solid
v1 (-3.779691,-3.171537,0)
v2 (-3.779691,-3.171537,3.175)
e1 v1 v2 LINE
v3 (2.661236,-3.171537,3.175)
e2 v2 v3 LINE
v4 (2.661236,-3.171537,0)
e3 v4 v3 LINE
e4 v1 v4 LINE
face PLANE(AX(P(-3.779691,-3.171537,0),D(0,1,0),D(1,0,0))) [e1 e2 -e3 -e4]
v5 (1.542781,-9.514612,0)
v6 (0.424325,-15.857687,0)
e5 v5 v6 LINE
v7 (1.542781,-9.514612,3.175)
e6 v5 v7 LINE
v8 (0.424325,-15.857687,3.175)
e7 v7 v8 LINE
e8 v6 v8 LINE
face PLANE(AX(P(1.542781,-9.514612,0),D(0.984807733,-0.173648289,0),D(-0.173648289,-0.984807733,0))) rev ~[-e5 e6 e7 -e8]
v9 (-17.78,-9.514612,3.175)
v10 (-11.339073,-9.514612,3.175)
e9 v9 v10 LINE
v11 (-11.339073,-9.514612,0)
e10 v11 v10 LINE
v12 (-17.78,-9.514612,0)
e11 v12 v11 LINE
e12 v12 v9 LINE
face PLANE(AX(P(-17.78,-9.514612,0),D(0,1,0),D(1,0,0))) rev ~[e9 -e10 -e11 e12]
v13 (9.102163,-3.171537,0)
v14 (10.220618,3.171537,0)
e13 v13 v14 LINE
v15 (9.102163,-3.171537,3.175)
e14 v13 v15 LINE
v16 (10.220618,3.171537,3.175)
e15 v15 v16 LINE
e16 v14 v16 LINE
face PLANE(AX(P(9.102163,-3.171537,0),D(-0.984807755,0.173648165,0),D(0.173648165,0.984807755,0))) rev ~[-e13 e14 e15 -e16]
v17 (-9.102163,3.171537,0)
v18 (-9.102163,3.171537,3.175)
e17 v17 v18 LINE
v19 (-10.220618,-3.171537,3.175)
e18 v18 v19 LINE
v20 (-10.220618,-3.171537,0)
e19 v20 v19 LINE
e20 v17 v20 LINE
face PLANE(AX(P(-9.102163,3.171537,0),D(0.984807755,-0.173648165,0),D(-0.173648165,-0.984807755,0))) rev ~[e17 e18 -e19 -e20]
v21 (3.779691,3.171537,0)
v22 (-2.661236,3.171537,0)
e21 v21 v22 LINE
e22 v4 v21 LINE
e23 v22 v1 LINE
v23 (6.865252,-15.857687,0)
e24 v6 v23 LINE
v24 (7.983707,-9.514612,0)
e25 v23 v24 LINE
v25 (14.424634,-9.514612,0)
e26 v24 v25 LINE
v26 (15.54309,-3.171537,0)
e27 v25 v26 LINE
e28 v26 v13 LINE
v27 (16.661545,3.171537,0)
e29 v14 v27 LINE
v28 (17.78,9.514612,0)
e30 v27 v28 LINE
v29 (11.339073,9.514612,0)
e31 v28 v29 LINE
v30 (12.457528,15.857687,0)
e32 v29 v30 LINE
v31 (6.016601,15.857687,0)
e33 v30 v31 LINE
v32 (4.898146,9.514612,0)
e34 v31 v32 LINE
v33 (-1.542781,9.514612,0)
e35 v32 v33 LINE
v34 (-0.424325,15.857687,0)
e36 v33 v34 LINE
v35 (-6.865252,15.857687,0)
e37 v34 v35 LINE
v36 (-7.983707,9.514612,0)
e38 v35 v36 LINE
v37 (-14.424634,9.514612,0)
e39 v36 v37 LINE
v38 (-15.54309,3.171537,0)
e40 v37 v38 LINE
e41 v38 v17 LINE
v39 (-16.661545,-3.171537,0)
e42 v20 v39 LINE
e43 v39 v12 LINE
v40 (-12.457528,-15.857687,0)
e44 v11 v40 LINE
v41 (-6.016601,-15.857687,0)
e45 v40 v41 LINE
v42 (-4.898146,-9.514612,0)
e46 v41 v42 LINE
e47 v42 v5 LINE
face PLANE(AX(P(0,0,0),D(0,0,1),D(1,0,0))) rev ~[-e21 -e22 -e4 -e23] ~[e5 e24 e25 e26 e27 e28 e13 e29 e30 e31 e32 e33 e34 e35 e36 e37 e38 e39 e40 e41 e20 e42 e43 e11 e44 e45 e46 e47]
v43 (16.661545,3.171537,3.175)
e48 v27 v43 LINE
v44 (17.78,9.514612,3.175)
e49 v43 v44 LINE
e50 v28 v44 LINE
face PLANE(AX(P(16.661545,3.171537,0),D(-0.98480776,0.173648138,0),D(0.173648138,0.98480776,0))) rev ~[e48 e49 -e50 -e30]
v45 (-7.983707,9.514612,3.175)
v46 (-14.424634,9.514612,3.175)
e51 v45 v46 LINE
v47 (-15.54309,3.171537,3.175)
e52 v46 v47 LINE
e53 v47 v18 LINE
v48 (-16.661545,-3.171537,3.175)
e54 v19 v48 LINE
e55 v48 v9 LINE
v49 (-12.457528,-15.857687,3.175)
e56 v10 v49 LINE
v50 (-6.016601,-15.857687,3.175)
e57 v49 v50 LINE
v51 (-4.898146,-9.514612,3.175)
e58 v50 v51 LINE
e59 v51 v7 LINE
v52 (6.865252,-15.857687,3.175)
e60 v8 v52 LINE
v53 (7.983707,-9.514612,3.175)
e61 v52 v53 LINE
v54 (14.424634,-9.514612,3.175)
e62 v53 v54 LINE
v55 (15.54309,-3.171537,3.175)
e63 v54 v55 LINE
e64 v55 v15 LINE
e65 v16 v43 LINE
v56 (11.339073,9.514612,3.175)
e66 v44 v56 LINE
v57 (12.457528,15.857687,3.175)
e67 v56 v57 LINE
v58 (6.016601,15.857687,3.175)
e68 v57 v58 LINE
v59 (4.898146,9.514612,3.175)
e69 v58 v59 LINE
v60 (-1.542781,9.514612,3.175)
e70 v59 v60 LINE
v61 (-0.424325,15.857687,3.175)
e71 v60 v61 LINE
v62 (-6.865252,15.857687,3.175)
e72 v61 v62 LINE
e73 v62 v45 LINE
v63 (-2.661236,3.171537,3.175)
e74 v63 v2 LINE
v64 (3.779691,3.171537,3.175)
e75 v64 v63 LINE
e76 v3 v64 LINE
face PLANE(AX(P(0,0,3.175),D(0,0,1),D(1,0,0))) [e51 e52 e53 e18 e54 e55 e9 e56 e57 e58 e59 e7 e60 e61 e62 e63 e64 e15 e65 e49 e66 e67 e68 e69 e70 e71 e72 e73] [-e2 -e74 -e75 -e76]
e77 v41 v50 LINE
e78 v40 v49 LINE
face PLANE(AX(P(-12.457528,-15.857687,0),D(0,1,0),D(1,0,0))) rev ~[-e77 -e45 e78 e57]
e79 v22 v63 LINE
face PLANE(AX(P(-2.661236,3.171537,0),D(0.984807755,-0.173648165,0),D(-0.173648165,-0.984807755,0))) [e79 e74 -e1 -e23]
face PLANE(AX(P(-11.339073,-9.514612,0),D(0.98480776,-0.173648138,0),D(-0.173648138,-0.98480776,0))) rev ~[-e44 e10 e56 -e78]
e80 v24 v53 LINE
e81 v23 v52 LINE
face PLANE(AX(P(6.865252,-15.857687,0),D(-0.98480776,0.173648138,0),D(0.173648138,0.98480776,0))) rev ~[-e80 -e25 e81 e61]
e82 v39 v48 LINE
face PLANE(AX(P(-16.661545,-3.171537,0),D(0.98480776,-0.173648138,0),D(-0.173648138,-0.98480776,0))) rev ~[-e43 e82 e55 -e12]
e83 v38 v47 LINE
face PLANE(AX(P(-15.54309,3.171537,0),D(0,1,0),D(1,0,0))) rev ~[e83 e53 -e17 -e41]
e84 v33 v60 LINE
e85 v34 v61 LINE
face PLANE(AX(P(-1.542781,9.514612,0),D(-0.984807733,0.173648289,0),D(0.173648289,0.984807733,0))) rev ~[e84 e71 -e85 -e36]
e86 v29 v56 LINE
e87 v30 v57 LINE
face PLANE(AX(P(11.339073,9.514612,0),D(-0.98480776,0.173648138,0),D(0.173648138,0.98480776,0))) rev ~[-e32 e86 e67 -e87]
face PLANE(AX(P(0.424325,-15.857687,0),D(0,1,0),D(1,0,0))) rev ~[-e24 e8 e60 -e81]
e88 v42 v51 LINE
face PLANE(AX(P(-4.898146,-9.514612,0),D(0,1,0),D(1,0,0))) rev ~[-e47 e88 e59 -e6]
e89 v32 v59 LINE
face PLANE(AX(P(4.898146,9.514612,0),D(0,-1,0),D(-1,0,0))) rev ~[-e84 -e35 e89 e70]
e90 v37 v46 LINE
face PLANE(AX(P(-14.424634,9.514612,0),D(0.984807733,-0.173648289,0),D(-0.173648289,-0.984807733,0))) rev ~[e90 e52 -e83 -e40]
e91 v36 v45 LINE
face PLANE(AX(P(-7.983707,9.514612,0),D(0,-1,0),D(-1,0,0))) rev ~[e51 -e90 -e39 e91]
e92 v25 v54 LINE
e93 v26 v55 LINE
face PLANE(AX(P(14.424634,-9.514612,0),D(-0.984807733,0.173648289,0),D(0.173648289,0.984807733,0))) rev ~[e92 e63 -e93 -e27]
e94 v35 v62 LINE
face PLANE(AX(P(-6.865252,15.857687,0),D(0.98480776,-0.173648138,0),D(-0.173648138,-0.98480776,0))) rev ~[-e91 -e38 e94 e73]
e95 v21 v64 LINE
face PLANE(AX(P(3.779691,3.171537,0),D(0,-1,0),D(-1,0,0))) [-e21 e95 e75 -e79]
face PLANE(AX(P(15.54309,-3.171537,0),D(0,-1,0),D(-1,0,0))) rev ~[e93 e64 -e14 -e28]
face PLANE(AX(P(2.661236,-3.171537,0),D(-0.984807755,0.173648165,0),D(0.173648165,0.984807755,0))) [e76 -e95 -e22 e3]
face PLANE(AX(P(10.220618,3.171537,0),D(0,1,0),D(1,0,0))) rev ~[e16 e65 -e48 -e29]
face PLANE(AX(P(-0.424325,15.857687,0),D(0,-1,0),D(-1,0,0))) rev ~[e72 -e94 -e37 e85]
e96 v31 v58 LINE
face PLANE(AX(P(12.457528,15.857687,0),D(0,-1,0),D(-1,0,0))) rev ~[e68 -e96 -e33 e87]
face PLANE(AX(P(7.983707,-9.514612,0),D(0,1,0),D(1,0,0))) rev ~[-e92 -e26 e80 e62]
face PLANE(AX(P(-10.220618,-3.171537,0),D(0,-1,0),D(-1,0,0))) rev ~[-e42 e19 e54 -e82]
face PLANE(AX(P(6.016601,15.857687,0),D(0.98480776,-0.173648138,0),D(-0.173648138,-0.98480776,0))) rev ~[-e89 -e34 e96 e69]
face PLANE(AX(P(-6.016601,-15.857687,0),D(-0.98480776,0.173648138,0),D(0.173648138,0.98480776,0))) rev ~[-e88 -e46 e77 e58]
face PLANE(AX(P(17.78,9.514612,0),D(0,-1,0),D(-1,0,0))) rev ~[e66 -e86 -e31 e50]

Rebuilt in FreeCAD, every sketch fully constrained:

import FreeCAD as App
import Part
import Sketcher
from FreeCAD import Vector
Q = App.Units.Quantity

doc = App.newDocument("Part")
body = doc.addObject("PartDesign::Body", "Body")

# Sketch on XY plane
sketch1 = body.newObject("Sketcher::SketchObject", "Sketch")
sketch1.AttachmentSupport = (doc.getObject("XY_Plane"), [""])
sketch1.MapMode = "FlatFace"
sketch1.addGeometry(Part.LineSegment(Vector(-14, 10, 0), Vector(-16, 3, 0)), False)
sketch1.addGeometry(Part.LineSegment(Vector(-16, 3, 0), Vector(-9, 3, 0)), False)
sketch1.addGeometry(Part.LineSegment(Vector(-9, 3, 0), Vector(-10, -3, 0)), False)
sketch1.addGeometry(Part.LineSegment(Vector(-10, -3, 0), Vector(-17, -3, 0)), False)
sketch1.addGeometry(Part.LineSegment(Vector(-17, -3, 0), Vector(-18, -10, 0)), False)
sketch1.addGeometry(Part.LineSegment(Vector(-18, -10, 0), Vector(-11, -10, 0)), False)
sketch1.addGeometry(Part.LineSegment(Vector(-11, -10, 0), Vector(-12, -16, 0)), False)
sketch1.addGeometry(Part.LineSegment(Vector(-12, -16, 0), Vector(-6, -16, 0)), False)
sketch1.addGeometry(Part.LineSegment(Vector(-6, -16, 0), Vector(-5, -10, 0)), False)
sketch1.addGeometry(Part.LineSegment(Vector(-5, -10, 0), Vector(2, -10, 0)), False)
sketch1.addGeometry(Part.LineSegment(Vector(2, -10, 0), Vector(0, -16, 0)), False)
sketch1.addGeometry(Part.LineSegment(Vector(0, -16, 0), Vector(7, -16, 0)), False)
sketch1.addGeometry(Part.LineSegment(Vector(7, -16, 0), Vector(8, -10, 0)), False)
sketch1.addGeometry(Part.LineSegment(Vector(8, -10, 0), Vector(14, -10, 0)), False)
sketch1.addGeometry(Part.LineSegment(Vector(14, -10, 0), Vector(16, -3, 0)), False)
sketch1.addGeometry(Part.LineSegment(Vector(16, -3, 0), Vector(9, -3, 0)), False)
sketch1.addGeometry(Part.LineSegment(Vector(9, -3, 0), Vector(10, 3, 0)), False)
sketch1.addGeometry(Part.LineSegment(Vector(10, 3, 0), Vector(17, 3, 0)), False)
sketch1.addGeometry(Part.LineSegment(Vector(17, 3, 0), Vector(18, 10, 0)), False)
sketch1.addGeometry(Part.LineSegment(Vector(18, 10, 0), Vector(11, 10, 0)), False)
sketch1.addGeometry(Part.LineSegment(Vector(11, 10, 0), Vector(12, 16, 0)), False)
sketch1.addGeometry(Part.LineSegment(Vector(12, 16, 0), Vector(6, 16, 0)), False)
sketch1.addGeometry(Part.LineSegment(Vector(6, 16, 0), Vector(5, 10, 0)), False)
sketch1.addGeometry(Part.LineSegment(Vector(5, 10, 0), Vector(-2, 10, 0)), False)
sketch1.addGeometry(Part.LineSegment(Vector(-2, 10, 0), Vector(0, 16, 0)), False)
sketch1.addGeometry(Part.LineSegment(Vector(0, 16, 0), Vector(-7, 16, 0)), False)
sketch1.addGeometry(Part.LineSegment(Vector(-7, 16, 0), Vector(-8, 10, 0)), False)
sketch1.addGeometry(Part.LineSegment(Vector(-8, 10, 0), Vector(-14, 10, 0)), False)
sketch1.addGeometry(Part.LineSegment(Vector(-4, -3, 0), Vector(-3, 3, 0)), False)
sketch1.addGeometry(Part.LineSegment(Vector(-3, 3, 0), Vector(4, 3, 0)), False)
sketch1.addGeometry(Part.LineSegment(Vector(4, 3, 0), Vector(3, -3, 0)), False)
sketch1.addGeometry(Part.LineSegment(Vector(3, -3, 0), Vector(-4, -3, 0)), False)
sketch1.addConstraint(Sketcher.Constraint("Coincident", 0, 2, 1, 1))
sketch1.addConstraint(Sketcher.Constraint("Coincident", 1, 2, 2, 1))
sketch1.addConstraint(Sketcher.Constraint("Coincident", 2, 2, 3, 1))
sketch1.addConstraint(Sketcher.Constraint("Coincident", 3, 2, 4, 1))
sketch1.addConstraint(Sketcher.Constraint("Coincident", 4, 2, 5, 1))
sketch1.addConstraint(Sketcher.Constraint("Coincident", 5, 2, 6, 1))
sketch1.addConstraint(Sketcher.Constraint("Coincident", 6, 2, 7, 1))
sketch1.addConstraint(Sketcher.Constraint("Coincident", 7, 2, 8, 1))
sketch1.addConstraint(Sketcher.Constraint("Coincident", 8, 2, 9, 1))
sketch1.addConstraint(Sketcher.Constraint("Coincident", 9, 2, 10, 1))
sketch1.addConstraint(Sketcher.Constraint("Coincident", 10, 2, 11, 1))
sketch1.addConstraint(Sketcher.Constraint("Coincident", 11, 2, 12, 1))
sketch1.addConstraint(Sketcher.Constraint("Coincident", 12, 2, 13, 1))
sketch1.addConstraint(Sketcher.Constraint("Coincident", 13, 2, 14, 1))
sketch1.addConstraint(Sketcher.Constraint("Coincident", 14, 2, 15, 1))
sketch1.addConstraint(Sketcher.Constraint("Coincident", 15, 2, 16, 1))
sketch1.addConstraint(Sketcher.Constraint("Coincident", 16, 2, 17, 1))
sketch1.addConstraint(Sketcher.Constraint("Coincident", 17, 2, 18, 1))
sketch1.addConstraint(Sketcher.Constraint("Coincident", 18, 2, 19, 1))
sketch1.addConstraint(Sketcher.Constraint("Coincident", 19, 2, 20, 1))
sketch1.addConstraint(Sketcher.Constraint("Coincident", 20, 2, 21, 1))
sketch1.addConstraint(Sketcher.Constraint("Coincident", 21, 2, 22, 1))
sketch1.addConstraint(Sketcher.Constraint("Coincident", 22, 2, 23, 1))
sketch1.addConstraint(Sketcher.Constraint("Coincident", 23, 2, 24, 1))
sketch1.addConstraint(Sketcher.Constraint("Coincident", 24, 2, 25, 1))
sketch1.addConstraint(Sketcher.Constraint("Coincident", 25, 2, 26, 1))
sketch1.addConstraint(Sketcher.Constraint("Coincident", 26, 2, 27, 1))
sketch1.addConstraint(Sketcher.Constraint("Coincident", 27, 2, 0, 1))
sketch1.addConstraint(Sketcher.Constraint("Coincident", 28, 2, 29, 1))
sketch1.addConstraint(Sketcher.Constraint("Coincident", 29, 2, 30, 1))
sketch1.addConstraint(Sketcher.Constraint("Coincident", 30, 2, 31, 1))
sketch1.addConstraint(Sketcher.Constraint("Coincident", 31, 2, 28, 1))
sketch1.addConstraint(Sketcher.Constraint("Horizontal", 1))
sketch1.addConstraint(Sketcher.Constraint("Horizontal", 3))
sketch1.addConstraint(Sketcher.Constraint("Horizontal", 5))
sketch1.addConstraint(Sketcher.Constraint("Horizontal", 7))
sketch1.addConstraint(Sketcher.Constraint("Horizontal", 9))
sketch1.addConstraint(Sketcher.Constraint("Horizontal", 11))
sketch1.addConstraint(Sketcher.Constraint("Horizontal", 13))
sketch1.addConstraint(Sketcher.Constraint("Horizontal", 15))
sketch1.addConstraint(Sketcher.Constraint("Horizontal", 17))
sketch1.addConstraint(Sketcher.Constraint("Horizontal", 19))
sketch1.addConstraint(Sketcher.Constraint("Horizontal", 21))
sketch1.addConstraint(Sketcher.Constraint("Horizontal", 23))
sketch1.addConstraint(Sketcher.Constraint("Horizontal", 25))
sketch1.addConstraint(Sketcher.Constraint("Horizontal", 27))
sketch1.addConstraint(Sketcher.Constraint("Horizontal", 29))
sketch1.addConstraint(Sketcher.Constraint("Horizontal", 31))
sketch1.addConstraint(Sketcher.Constraint("Symmetric", 0, 2, 14, 2, -1, 1))
sketch1.addConstraint(Sketcher.Constraint("Symmetric", 2, 2, 16, 2, -1, 1))
sketch1.addConstraint(Sketcher.Constraint("Symmetric", 4, 2, 18, 2, -1, 1))
sketch1.addConstraint(Sketcher.Constraint("Symmetric", 6, 2, 20, 2, -1, 1))
sketch1.addConstraint(Sketcher.Constraint("Symmetric", 8, 2, 22, 2, -1, 1))
sketch1.addConstraint(Sketcher.Constraint("Symmetric", 10, 2, 24, 2, -1, 1))
sketch1.addConstraint(Sketcher.Constraint("Symmetric", 12, 2, 26, 2, -1, 1))
sketch1.addConstraint(Sketcher.Constraint("Symmetric", 28, 2, 30, 2, -1, 1))
sketch1.addConstraint(Sketcher.Constraint("Parallel", 0, 2))
sketch1.addConstraint(Sketcher.Constraint("Parallel", 2, 4))
sketch1.addConstraint(Sketcher.Constraint("Parallel", 4, 6))
sketch1.addConstraint(Sketcher.Constraint("Parallel", 6, 8))
sketch1.addConstraint(Sketcher.Constraint("Parallel", 8, 10))
sketch1.addConstraint(Sketcher.Constraint("Parallel", 10, 12))
sketch1.addConstraint(Sketcher.Constraint("Parallel", 12, 14))
sketch1.addConstraint(Sketcher.Constraint("Parallel", 14, 16))
sketch1.addConstraint(Sketcher.Constraint("Parallel", 16, 18))
sketch1.addConstraint(Sketcher.Constraint("Parallel", 18, 20))
sketch1.addConstraint(Sketcher.Constraint("Parallel", 20, 22))
sketch1.addConstraint(Sketcher.Constraint("Parallel", 22, 24))
sketch1.addConstraint(Sketcher.Constraint("Parallel", 24, 26))
sketch1.addConstraint(Sketcher.Constraint("Parallel", 26, 28))
sketch1.addConstraint(Sketcher.Constraint("Parallel", 28, 30))
sketch1.addConstraint(Sketcher.Constraint("Horizontal", 5, 2, 8, 2))
sketch1.addConstraint(Sketcher.Constraint("Horizontal", 7, 2, 10, 2))
sketch1.addConstraint(Sketcher.Constraint("Horizontal", 9, 2, 12, 2))
sketch1.addConstraint(Sketcher.Constraint("Horizontal", 3, 2, 14, 2))
sketch1.addConstraint(Sketcher.Constraint("Horizontal", 17, 2, 28, 2))
sketch1.addConstraint(Sketcher.Constraint("Equal", 1, 3))
sketch1.addConstraint(Sketcher.Constraint("Equal", 3, 5))
sketch1.addConstraint(Sketcher.Constraint("Equal", 5, 7))
sketch1.addConstraint(Sketcher.Constraint("Equal", 7, 9))
sketch1.addConstraint(Sketcher.Constraint("Equal", 9, 11))
sketch1.addConstraint(Sketcher.Constraint("Equal", 11, 13))
sketch1.addConstraint(Sketcher.Constraint("Equal", 27, 29))
sketch1.addConstraint(Sketcher.Constraint("Equal", 0, 2))
sketch1.addConstraint(Sketcher.Constraint("Equal", 4, 6))
sketch1.addConstraint(Sketcher.Constraint("Angle", 0, Q("-100.000006 deg")))
sketch1.addConstraint(Sketcher.Constraint("DistanceX", 4, 2, -1, 1, Q("0.7 in")))
sketch1.addConstraint(Sketcher.Constraint("DistanceX", 7, 2, -1, 1, 6.016601))
pad1 = body.newObject("PartDesign::Pad", "Pad")
pad1.Profile = sketch1
pad1.Length = Q("0.125 in")

doc.recompute()
